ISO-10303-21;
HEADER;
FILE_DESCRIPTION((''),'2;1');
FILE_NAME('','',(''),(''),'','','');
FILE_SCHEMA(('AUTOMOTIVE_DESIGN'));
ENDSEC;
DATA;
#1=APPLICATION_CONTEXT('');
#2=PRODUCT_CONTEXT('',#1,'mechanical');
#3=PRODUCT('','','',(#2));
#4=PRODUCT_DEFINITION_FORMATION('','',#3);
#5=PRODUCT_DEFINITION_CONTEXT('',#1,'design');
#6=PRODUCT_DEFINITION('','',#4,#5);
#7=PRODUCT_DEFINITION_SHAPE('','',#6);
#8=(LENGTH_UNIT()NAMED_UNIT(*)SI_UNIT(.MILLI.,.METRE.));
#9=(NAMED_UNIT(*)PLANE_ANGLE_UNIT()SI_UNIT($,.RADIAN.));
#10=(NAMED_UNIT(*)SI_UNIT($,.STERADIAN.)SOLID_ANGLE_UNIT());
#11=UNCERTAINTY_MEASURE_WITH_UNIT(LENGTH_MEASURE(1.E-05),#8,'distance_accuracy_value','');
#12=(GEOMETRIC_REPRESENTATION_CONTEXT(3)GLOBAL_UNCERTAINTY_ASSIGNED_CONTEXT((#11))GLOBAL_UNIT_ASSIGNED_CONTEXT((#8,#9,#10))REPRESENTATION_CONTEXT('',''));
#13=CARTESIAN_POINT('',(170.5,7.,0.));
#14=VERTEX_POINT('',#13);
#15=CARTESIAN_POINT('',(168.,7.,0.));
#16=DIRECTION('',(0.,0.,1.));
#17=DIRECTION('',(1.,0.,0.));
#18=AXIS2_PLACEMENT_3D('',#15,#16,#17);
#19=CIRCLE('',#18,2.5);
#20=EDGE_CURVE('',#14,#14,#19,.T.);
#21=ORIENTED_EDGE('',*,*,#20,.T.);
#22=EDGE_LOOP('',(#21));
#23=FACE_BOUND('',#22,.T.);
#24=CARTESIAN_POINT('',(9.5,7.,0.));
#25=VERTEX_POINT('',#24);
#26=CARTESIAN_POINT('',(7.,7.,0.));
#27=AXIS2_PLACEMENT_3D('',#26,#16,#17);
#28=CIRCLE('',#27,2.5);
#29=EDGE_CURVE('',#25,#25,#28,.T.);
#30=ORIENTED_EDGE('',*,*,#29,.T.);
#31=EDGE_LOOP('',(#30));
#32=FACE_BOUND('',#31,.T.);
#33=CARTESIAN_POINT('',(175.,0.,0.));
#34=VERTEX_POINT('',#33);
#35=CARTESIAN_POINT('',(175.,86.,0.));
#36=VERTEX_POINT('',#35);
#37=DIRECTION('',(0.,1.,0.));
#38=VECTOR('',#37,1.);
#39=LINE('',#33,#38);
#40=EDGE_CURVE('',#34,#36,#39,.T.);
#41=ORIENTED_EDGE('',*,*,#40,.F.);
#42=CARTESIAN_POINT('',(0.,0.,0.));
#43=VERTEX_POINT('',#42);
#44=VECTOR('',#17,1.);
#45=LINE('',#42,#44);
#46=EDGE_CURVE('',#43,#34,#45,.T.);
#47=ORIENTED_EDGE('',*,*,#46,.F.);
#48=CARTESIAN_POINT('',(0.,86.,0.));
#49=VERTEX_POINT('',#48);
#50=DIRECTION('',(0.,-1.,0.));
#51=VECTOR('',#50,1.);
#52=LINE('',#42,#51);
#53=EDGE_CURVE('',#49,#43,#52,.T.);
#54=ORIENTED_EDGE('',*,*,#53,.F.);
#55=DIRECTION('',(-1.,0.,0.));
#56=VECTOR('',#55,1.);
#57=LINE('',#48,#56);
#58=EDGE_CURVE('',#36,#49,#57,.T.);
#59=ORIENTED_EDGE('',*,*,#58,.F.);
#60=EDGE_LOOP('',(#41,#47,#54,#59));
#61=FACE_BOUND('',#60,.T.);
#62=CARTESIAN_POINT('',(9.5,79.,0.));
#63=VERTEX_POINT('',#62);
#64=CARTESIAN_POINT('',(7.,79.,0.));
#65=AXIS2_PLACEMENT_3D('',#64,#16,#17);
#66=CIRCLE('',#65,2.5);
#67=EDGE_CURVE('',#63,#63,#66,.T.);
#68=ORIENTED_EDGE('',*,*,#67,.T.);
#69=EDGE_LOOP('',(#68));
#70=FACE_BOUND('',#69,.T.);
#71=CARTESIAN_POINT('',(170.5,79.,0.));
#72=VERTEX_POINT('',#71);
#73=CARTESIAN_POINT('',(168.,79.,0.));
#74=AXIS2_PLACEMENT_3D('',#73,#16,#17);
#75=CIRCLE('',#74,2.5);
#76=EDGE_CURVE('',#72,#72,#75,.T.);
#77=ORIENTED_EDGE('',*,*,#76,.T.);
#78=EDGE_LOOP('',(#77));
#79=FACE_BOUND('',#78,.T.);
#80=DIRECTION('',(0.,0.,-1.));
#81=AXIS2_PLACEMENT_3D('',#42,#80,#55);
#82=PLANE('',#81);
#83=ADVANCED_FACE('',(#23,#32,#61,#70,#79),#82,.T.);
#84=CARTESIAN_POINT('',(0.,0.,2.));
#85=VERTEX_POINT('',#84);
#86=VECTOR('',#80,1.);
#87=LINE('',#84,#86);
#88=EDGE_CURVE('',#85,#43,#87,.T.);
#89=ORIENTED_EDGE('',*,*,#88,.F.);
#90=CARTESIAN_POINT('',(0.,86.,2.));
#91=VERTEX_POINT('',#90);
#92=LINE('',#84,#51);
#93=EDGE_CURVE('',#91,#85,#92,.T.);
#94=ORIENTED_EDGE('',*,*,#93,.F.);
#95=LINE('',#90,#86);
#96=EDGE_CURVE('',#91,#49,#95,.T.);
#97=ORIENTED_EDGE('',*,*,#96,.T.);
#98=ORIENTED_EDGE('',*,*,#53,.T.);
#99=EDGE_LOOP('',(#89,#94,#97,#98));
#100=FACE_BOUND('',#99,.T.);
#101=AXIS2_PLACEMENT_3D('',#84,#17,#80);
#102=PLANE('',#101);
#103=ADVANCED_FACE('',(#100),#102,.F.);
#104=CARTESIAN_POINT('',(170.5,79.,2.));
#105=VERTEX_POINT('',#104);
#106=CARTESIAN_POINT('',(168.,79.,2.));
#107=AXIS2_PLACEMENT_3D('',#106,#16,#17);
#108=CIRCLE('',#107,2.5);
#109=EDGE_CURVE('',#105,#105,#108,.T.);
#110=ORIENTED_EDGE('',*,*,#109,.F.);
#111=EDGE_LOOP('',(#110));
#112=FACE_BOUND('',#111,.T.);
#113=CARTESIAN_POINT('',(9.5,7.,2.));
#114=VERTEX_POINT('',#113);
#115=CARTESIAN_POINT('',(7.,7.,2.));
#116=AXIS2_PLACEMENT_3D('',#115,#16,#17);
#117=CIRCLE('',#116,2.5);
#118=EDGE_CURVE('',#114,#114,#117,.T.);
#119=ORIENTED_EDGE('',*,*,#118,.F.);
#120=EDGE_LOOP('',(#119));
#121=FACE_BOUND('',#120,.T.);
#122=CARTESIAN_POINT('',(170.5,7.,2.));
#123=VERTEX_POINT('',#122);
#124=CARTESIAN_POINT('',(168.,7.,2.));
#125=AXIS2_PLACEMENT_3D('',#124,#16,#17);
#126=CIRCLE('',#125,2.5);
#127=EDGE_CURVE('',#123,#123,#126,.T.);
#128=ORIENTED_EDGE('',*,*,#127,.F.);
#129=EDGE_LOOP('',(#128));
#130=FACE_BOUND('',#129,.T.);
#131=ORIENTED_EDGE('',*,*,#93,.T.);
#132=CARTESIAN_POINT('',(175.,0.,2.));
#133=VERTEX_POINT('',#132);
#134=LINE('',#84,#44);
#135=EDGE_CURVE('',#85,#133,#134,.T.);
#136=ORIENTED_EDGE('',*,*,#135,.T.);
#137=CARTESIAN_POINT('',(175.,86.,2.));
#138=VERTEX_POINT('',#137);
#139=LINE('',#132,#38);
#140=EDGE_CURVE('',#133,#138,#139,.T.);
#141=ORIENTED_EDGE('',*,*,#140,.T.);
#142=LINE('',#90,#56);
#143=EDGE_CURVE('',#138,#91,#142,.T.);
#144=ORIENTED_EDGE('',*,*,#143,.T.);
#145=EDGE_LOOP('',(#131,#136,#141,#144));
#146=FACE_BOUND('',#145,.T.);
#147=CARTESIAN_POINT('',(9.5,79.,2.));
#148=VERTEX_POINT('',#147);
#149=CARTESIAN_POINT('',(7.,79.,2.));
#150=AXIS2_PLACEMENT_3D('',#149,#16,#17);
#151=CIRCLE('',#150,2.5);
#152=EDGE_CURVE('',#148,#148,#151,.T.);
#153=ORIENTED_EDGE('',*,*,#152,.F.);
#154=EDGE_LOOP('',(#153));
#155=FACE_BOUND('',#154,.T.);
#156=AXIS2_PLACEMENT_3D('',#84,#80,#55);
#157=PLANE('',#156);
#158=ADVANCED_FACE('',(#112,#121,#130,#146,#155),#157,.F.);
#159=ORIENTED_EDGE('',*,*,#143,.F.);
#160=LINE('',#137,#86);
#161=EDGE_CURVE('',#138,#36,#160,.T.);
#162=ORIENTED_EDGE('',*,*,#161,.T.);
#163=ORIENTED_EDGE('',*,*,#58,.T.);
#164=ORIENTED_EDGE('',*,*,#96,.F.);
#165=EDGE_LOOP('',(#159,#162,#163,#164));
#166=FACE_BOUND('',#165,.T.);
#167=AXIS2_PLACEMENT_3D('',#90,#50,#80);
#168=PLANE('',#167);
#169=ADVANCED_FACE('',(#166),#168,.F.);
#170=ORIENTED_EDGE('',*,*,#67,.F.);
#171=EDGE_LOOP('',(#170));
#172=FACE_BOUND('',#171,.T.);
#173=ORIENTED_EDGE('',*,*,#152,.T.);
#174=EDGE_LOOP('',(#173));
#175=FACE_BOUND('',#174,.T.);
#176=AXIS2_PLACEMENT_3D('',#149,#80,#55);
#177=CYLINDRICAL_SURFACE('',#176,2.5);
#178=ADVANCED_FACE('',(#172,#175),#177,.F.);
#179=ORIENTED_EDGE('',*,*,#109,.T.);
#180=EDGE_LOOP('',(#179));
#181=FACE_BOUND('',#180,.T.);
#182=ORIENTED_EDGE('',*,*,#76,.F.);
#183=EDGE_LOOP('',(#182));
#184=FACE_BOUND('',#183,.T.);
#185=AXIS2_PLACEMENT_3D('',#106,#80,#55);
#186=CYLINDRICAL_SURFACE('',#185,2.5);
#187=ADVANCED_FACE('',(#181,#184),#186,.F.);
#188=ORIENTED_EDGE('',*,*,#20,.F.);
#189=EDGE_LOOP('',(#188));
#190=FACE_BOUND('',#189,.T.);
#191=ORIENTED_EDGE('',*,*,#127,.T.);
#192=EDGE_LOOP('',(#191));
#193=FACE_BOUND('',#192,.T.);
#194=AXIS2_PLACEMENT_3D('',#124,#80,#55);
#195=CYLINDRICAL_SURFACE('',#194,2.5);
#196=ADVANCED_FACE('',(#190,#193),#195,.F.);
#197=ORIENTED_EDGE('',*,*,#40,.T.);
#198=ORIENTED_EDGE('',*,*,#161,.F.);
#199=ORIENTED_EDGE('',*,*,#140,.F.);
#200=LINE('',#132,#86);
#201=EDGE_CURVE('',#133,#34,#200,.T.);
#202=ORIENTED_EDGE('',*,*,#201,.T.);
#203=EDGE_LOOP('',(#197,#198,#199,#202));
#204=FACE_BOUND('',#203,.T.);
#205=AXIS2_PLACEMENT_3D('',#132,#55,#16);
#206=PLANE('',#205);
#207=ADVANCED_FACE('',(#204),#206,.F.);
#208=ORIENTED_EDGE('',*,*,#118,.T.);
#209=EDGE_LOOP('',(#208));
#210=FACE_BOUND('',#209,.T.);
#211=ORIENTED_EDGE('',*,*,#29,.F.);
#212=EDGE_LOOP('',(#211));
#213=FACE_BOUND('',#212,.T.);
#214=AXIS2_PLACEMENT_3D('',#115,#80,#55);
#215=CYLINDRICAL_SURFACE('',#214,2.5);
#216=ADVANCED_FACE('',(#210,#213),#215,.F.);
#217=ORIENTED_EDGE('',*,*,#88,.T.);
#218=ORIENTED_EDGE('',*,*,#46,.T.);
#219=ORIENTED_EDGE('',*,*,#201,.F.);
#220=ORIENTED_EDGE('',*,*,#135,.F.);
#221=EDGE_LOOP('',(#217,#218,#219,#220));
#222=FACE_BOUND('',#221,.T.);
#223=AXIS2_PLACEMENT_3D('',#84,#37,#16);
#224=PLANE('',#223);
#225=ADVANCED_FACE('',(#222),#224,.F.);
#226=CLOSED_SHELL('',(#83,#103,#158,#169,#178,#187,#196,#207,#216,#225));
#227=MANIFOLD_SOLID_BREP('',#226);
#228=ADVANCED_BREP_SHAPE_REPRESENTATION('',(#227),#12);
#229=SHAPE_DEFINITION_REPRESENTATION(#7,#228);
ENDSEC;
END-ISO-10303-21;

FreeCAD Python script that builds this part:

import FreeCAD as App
import Part
import Sketcher
Q = App.Units.Quantity

doc = App.newDocument("Part")
params = doc.addObject("Spreadsheet::Sheet", "Params")
for row, (alias, value) in enumerate([
    ("sketch1_diameter", "5 mm"),
    ("sketch1_width", "175 mm"),
    ("sketch1_height", "86 mm"),
    ("pad1_length", "2 mm"),
], start=1):
    params.set(f"A{row}", alias)
    params.set(f"B{row}", "=" + value)
    params.setAlias(f"B{row}", alias)

body = doc.addObject("PartDesign::Body", "Body")

sketch1 = body.newObject("Sketcher::SketchObject", "Sketch")
sketch1.AttachmentSupport = (doc.getObject("XY_Plane"), [""])
sketch1.MapMode = "FlatFace"
sketch1.addGeometry(Part.LineSegment(App.Vector(0, 86, 0), App.Vector(0, 0, 0)), False)
sketch1.addGeometry(Part.LineSegment(App.Vector(0, 0, 0), App.Vector(175, 0, 0)), False)
sketch1.addGeometry(Part.LineSegment(App.Vector(175, 0, 0), App.Vector(175, 86, 0)), False)
sketch1.addGeometry(Part.LineSegment(App.Vector(175, 86, 0), App.Vector(0, 86, 0)), False)
sketch1.addGeometry(Part.Circle(App.Vector(7, 7, 0), App.Vector(0, 0, 1), 2.5), False)
sketch1.addGeometry(Part.Circle(App.Vector(168, 7, 0), App.Vector(0, 0, 1), 2.5), False)
sketch1.addGeometry(Part.Circle(App.Vector(7, 79, 0), App.Vector(0, 0, 1), 2.5), False)
sketch1.addGeometry(Part.Circle(App.Vector(168, 79, 0), App.Vector(0, 0, 1), 2.5), False)
sketch1.addConstraint(Sketcher.Constraint("Coincident", 0, 2, 1, 1))
sketch1.addConstraint(Sketcher.Constraint("Coincident", 1, 2, 2, 1))
sketch1.addConstraint(Sketcher.Constraint("Coincident", 2, 2, 3, 1))
sketch1.addConstraint(Sketcher.Constraint("Coincident", 3, 2, 0, 1))
sketch1.addConstraint(Sketcher.Constraint("Vertical", 0))
sketch1.addConstraint(Sketcher.Constraint("Horizontal", 1))
sketch1.addConstraint(Sketcher.Constraint("Vertical", 2))
sketch1.addConstraint(Sketcher.Constraint("Horizontal", 3))
sketch1.addConstraint(Sketcher.Constraint("Coincident", 0, 2, -1, 1))
sketch1.addConstraint(Sketcher.Constraint("Equal", 4, 5))
sketch1.addConstraint(Sketcher.Constraint("Equal", 5, 6))
sketch1.addConstraint(Sketcher.Constraint("Equal", 6, 7))
sketch1.addConstraint(Sketcher.Constraint("Horizontal", 4, 3, 5, 3))
sketch1.addConstraint(Sketcher.Constraint("Horizontal", 6, 3, 7, 3))
sketch1.addConstraint(Sketcher.Constraint("Vertical", 4, 3, 6, 3))
sketch1.addConstraint(Sketcher.Constraint("Vertical", 5, 3, 7, 3))
sketch1.addConstraint(Sketcher.Constraint("Diameter", 4, Q("5 mm")))
sketch1.addConstraint(Sketcher.Constraint("DistanceX", 1, 1, 1, 2, Q("175 mm")))
sketch1.addConstraint(Sketcher.Constraint("DistanceY", 0, 2, 0, 1, Q("86 mm")))
sketch1.addConstraint(Sketcher.Constraint("DistanceX", -1, 1, 4, 3, Q("7 mm")))
sketch1.addConstraint(Sketcher.Constraint("DistanceY", -1, 1, 4, 3, Q("7 mm")))
sketch1.addConstraint(Sketcher.Constraint("DistanceX", -1, 1, 5, 3, Q("168 mm")))
sketch1.addConstraint(Sketcher.Constraint("DistanceY", -1, 1, 6, 3, Q("79 mm")))
sketch1.setExpression("Constraints[16]", "Params.sketch1_diameter")
sketch1.setExpression("Constraints[17]", "Params.sketch1_width")
sketch1.setExpression("Constraints[18]", "Params.sketch1_height")
pad1 = body.newObject("PartDesign::Pad", "Pad")
pad1.Profile = sketch1
pad1.setExpression("Length", "Params.pad1_length")

doc.recompute()
